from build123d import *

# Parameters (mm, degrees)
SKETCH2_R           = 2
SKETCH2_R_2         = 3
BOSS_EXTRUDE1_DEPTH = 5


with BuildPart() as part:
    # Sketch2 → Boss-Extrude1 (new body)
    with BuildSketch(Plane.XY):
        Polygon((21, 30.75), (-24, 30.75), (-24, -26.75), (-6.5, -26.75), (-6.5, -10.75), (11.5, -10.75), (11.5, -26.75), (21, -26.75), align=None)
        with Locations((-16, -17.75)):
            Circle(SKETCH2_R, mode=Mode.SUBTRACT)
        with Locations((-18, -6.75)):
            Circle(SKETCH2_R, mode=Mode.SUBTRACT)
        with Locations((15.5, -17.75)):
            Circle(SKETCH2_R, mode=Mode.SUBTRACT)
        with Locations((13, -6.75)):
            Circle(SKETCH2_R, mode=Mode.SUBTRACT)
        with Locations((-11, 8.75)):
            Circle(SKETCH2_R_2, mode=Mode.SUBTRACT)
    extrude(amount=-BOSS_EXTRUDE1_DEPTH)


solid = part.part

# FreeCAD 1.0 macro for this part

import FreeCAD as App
import Part
import Sketcher
from FreeCAD import Vector

doc = App.newDocument("Part")
body = doc.addObject("PartDesign::Body", "Body")

# Sketch on XY plane
sketch1 = doc.addObject("Sketcher::SketchObject", "Sketch")
body.addObject(sketch1)
sketch1.AttachmentSupport = (doc.XY_Plane, [""])
sketch1.MapMode = "FlatFace"
sketch1.addGeometry([
    Part.LineSegment(Vector(21, 30.8, 0), Vector(-24, 30.8, 0)),  # 0
    Part.LineSegment(Vector(-24, 30.8, 0), Vector(-24, -26.8, 0)),  # 1
    Part.LineSegment(Vector(-24, -26.8, 0), Vector(-6.5, -26.8, 0)),  # 2
    Part.LineSegment(Vector(-6.5, -26.8, 0), Vector(-6.5, -10.8, 0)),  # 3
    Part.LineSegment(Vector(-6.5, -10.8, 0), Vector(11.5, -10.8, 0)),  # 4
    Part.LineSegment(Vector(11.5, -10.8, 0), Vector(11.5, -26.8, 0)),  # 5
    Part.LineSegment(Vector(11.5, -26.8, 0), Vector(21, -26.8, 0)),  # 6
    Part.LineSegment(Vector(21, -26.8, 0), Vector(21, 30.8, 0)),  # 7
    Part.Circle(Vector(-16, -17.8, 0), Vector(0, 0, 1), 2),  # 8
    Part.Circle(Vector(-18, -6.8, 0), Vector(0, 0, 1), 2),  # 9
    Part.Circle(Vector(15.5, -17.8, 0), Vector(0, 0, 1), 2),  # 10
    Part.Circle(Vector(13, -6.8, 0), Vector(0, 0, 1), 2),  # 11
    Part.Circle(Vector(-11, 8.8, 0), Vector(0, 0, 1), 3),  # 12
], False)
sketch1.addConstraint([
    Sketcher.Constraint("Coincident", 0, 2, 1, 1),
    Sketcher.Constraint("Coincident", 1, 2, 2, 1),
    Sketcher.Constraint("Coincident", 2, 2, 3, 1),
    Sketcher.Constraint("Coincident", 3, 2, 4, 1),
    Sketcher.Constraint("Coincident", 4, 2, 5, 1),
    Sketcher.Constraint("Coincident", 5, 2, 6, 1),
    Sketcher.Constraint("Coincident", 6, 2, 7, 1),
    Sketcher.Constraint("Coincident", 7, 2, 0, 1),
    Sketcher.Constraint("Horizontal", 0),
    Sketcher.Constraint("Vertical", 1),
    Sketcher.Constraint("Horizontal", 2),
    Sketcher.Constraint("Vertical", 3),
    Sketcher.Constraint("Horizontal", 4),
    Sketcher.Constraint("Vertical", 5),
    Sketcher.Constraint("Horizontal", 6),
    Sketcher.Constraint("Vertical", 7),
    Sketcher.Constraint("Equal", 8, 9),
    Sketcher.Constraint("Equal", 9, 10),
    Sketcher.Constraint("Equal", 10, 11),
    Sketcher.Constraint("Horizontal", 8, 3, 10, 3),
    Sketcher.Constraint("Horizontal", 9, 3, 11, 3),
    Sketcher.Constraint("Horizontal", 2, 2, 5, 2),
    Sketcher.Constraint("Diameter", 8, 4.0),
    Sketcher.Constraint("Diameter", 12, 6.0),
    Sketcher.Constraint("DistanceX", 0, 2, 0, 1, 45.0),
    Sketcher.Constraint("DistanceX", 4, 1, 4, 2, 18.0),
    Sketcher.Constraint("DistanceY", 3, 1, 3, 2, 16.0),
    Sketcher.Constraint("DistanceX", 2, 1, 2, 2, 17.5),
    Sketcher.Constraint("DistanceY", 1, 2, 1, 1, 57.5),
    Sketcher.Constraint("DistanceX", 8, 3, -1, 1, 16.0),
    Sketcher.Constraint("DistanceX", 9, 3, -1, 1, 18.0),
    Sketcher.Constraint("DistanceX", -1, 1, 11, 3, 13.0),
    Sketcher.Constraint("DistanceX", 12, 3, -1, 1, 11.0),
    Sketcher.Constraint("DistanceX", 0, 2, -1, 1, 24.0),
    Sketcher.Constraint("DistanceY", 8, 3, 9, 3, 11.0),
    Sketcher.Constraint("DistanceY", 12, 3, 0, 2, 22.0),
    Sketcher.Constraint("DistanceY", 1, 2, 8, 3, 9.0),
    Sketcher.Constraint("DistanceX", 2, 2, 10, 3, 22.0),
    Sketcher.Constraint("DistanceY", 8, 3, -1, 1, 17.75),
])
pad1 = doc.addObject("PartDesign::Pad", "Pad")
body.addObject(pad1)
pad1.Profile = sketch1
pad1.Length = 5
pad1.Reversed = True

doc.recompute()
